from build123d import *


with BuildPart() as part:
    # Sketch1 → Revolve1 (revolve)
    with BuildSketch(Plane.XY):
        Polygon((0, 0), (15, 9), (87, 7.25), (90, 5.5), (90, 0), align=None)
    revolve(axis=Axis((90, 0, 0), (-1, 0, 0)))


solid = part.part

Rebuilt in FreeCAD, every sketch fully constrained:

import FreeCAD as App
import Part
import Sketcher
from FreeCAD import Vector

doc = App.newDocument("Part")
body = doc.addObject("PartDesign::Body", "Body")

# Sketch on XY plane
sketch1 = doc.addObject("Sketcher::SketchObject", "Sketch")
body.addObject(sketch1)
sketch1.AttachmentSupport = (doc.XY_Plane, [""])
sketch1.MapMode = "FlatFace"
sketch1.addGeometry([
    Part.LineSegment(Vector(15, 9, 0), Vector(0, 0, 0)),  # 0
    Part.LineSegment(Vector(0, 0, 0), Vector(90, 0, 0)),  # 1
    Part.LineSegment(Vector(90, 0, 0), Vector(90, 5.5, 0)),  # 2
    Part.LineSegment(Vector(90, 5.5, 0), Vector(87, 7.2, 0)),  # 3
    Part.LineSegment(Vector(87, 7.2, 0), Vector(15, 9, 0)),  # 4
], False)
sketch1.addConstraint([
    Sketcher.Constraint("Coincident", 0, 2, 1, 1),
    Sketcher.Constraint("Coincident", 1, 2, 2, 1),
    Sketcher.Constraint("Coincident", 2, 2, 3, 1),
    Sketcher.Constraint("Coincident", 3, 2, 4, 1),
    Sketcher.Constraint("Coincident", 4, 2, 0, 1),
    Sketcher.Constraint("Horizontal", 1),
    Sketcher.Constraint("Vertical", 2),
    Sketcher.Constraint("Coincident", 0, 2, -1, 1),
    Sketcher.Constraint("DistanceX", 1, 1, 1, 2, 90.0),
    Sketcher.Constraint("DistanceY", 2, 1, 2, 2, 5.5),
    Sketcher.Constraint("DistanceX", -1, 1, 3, 2, 87.0),
    Sketcher.Constraint("DistanceX", -1, 1, 4, 2, 15.0),
    Sketcher.Constraint("DistanceY", -1, 1, 4, 2, 9.0),
    Sketcher.Constraint("DistanceY", -1, 1, 3, 2, 7.25),
])
revolution = doc.addObject("PartDesign::Revolution", "Revolution")
body.addObject(revolution)
revolution.Profile = sketch1
revolution.ReferenceAxis = (sketch1, ["H_Axis"])
revolution.Angle = 360

doc.recompute()
